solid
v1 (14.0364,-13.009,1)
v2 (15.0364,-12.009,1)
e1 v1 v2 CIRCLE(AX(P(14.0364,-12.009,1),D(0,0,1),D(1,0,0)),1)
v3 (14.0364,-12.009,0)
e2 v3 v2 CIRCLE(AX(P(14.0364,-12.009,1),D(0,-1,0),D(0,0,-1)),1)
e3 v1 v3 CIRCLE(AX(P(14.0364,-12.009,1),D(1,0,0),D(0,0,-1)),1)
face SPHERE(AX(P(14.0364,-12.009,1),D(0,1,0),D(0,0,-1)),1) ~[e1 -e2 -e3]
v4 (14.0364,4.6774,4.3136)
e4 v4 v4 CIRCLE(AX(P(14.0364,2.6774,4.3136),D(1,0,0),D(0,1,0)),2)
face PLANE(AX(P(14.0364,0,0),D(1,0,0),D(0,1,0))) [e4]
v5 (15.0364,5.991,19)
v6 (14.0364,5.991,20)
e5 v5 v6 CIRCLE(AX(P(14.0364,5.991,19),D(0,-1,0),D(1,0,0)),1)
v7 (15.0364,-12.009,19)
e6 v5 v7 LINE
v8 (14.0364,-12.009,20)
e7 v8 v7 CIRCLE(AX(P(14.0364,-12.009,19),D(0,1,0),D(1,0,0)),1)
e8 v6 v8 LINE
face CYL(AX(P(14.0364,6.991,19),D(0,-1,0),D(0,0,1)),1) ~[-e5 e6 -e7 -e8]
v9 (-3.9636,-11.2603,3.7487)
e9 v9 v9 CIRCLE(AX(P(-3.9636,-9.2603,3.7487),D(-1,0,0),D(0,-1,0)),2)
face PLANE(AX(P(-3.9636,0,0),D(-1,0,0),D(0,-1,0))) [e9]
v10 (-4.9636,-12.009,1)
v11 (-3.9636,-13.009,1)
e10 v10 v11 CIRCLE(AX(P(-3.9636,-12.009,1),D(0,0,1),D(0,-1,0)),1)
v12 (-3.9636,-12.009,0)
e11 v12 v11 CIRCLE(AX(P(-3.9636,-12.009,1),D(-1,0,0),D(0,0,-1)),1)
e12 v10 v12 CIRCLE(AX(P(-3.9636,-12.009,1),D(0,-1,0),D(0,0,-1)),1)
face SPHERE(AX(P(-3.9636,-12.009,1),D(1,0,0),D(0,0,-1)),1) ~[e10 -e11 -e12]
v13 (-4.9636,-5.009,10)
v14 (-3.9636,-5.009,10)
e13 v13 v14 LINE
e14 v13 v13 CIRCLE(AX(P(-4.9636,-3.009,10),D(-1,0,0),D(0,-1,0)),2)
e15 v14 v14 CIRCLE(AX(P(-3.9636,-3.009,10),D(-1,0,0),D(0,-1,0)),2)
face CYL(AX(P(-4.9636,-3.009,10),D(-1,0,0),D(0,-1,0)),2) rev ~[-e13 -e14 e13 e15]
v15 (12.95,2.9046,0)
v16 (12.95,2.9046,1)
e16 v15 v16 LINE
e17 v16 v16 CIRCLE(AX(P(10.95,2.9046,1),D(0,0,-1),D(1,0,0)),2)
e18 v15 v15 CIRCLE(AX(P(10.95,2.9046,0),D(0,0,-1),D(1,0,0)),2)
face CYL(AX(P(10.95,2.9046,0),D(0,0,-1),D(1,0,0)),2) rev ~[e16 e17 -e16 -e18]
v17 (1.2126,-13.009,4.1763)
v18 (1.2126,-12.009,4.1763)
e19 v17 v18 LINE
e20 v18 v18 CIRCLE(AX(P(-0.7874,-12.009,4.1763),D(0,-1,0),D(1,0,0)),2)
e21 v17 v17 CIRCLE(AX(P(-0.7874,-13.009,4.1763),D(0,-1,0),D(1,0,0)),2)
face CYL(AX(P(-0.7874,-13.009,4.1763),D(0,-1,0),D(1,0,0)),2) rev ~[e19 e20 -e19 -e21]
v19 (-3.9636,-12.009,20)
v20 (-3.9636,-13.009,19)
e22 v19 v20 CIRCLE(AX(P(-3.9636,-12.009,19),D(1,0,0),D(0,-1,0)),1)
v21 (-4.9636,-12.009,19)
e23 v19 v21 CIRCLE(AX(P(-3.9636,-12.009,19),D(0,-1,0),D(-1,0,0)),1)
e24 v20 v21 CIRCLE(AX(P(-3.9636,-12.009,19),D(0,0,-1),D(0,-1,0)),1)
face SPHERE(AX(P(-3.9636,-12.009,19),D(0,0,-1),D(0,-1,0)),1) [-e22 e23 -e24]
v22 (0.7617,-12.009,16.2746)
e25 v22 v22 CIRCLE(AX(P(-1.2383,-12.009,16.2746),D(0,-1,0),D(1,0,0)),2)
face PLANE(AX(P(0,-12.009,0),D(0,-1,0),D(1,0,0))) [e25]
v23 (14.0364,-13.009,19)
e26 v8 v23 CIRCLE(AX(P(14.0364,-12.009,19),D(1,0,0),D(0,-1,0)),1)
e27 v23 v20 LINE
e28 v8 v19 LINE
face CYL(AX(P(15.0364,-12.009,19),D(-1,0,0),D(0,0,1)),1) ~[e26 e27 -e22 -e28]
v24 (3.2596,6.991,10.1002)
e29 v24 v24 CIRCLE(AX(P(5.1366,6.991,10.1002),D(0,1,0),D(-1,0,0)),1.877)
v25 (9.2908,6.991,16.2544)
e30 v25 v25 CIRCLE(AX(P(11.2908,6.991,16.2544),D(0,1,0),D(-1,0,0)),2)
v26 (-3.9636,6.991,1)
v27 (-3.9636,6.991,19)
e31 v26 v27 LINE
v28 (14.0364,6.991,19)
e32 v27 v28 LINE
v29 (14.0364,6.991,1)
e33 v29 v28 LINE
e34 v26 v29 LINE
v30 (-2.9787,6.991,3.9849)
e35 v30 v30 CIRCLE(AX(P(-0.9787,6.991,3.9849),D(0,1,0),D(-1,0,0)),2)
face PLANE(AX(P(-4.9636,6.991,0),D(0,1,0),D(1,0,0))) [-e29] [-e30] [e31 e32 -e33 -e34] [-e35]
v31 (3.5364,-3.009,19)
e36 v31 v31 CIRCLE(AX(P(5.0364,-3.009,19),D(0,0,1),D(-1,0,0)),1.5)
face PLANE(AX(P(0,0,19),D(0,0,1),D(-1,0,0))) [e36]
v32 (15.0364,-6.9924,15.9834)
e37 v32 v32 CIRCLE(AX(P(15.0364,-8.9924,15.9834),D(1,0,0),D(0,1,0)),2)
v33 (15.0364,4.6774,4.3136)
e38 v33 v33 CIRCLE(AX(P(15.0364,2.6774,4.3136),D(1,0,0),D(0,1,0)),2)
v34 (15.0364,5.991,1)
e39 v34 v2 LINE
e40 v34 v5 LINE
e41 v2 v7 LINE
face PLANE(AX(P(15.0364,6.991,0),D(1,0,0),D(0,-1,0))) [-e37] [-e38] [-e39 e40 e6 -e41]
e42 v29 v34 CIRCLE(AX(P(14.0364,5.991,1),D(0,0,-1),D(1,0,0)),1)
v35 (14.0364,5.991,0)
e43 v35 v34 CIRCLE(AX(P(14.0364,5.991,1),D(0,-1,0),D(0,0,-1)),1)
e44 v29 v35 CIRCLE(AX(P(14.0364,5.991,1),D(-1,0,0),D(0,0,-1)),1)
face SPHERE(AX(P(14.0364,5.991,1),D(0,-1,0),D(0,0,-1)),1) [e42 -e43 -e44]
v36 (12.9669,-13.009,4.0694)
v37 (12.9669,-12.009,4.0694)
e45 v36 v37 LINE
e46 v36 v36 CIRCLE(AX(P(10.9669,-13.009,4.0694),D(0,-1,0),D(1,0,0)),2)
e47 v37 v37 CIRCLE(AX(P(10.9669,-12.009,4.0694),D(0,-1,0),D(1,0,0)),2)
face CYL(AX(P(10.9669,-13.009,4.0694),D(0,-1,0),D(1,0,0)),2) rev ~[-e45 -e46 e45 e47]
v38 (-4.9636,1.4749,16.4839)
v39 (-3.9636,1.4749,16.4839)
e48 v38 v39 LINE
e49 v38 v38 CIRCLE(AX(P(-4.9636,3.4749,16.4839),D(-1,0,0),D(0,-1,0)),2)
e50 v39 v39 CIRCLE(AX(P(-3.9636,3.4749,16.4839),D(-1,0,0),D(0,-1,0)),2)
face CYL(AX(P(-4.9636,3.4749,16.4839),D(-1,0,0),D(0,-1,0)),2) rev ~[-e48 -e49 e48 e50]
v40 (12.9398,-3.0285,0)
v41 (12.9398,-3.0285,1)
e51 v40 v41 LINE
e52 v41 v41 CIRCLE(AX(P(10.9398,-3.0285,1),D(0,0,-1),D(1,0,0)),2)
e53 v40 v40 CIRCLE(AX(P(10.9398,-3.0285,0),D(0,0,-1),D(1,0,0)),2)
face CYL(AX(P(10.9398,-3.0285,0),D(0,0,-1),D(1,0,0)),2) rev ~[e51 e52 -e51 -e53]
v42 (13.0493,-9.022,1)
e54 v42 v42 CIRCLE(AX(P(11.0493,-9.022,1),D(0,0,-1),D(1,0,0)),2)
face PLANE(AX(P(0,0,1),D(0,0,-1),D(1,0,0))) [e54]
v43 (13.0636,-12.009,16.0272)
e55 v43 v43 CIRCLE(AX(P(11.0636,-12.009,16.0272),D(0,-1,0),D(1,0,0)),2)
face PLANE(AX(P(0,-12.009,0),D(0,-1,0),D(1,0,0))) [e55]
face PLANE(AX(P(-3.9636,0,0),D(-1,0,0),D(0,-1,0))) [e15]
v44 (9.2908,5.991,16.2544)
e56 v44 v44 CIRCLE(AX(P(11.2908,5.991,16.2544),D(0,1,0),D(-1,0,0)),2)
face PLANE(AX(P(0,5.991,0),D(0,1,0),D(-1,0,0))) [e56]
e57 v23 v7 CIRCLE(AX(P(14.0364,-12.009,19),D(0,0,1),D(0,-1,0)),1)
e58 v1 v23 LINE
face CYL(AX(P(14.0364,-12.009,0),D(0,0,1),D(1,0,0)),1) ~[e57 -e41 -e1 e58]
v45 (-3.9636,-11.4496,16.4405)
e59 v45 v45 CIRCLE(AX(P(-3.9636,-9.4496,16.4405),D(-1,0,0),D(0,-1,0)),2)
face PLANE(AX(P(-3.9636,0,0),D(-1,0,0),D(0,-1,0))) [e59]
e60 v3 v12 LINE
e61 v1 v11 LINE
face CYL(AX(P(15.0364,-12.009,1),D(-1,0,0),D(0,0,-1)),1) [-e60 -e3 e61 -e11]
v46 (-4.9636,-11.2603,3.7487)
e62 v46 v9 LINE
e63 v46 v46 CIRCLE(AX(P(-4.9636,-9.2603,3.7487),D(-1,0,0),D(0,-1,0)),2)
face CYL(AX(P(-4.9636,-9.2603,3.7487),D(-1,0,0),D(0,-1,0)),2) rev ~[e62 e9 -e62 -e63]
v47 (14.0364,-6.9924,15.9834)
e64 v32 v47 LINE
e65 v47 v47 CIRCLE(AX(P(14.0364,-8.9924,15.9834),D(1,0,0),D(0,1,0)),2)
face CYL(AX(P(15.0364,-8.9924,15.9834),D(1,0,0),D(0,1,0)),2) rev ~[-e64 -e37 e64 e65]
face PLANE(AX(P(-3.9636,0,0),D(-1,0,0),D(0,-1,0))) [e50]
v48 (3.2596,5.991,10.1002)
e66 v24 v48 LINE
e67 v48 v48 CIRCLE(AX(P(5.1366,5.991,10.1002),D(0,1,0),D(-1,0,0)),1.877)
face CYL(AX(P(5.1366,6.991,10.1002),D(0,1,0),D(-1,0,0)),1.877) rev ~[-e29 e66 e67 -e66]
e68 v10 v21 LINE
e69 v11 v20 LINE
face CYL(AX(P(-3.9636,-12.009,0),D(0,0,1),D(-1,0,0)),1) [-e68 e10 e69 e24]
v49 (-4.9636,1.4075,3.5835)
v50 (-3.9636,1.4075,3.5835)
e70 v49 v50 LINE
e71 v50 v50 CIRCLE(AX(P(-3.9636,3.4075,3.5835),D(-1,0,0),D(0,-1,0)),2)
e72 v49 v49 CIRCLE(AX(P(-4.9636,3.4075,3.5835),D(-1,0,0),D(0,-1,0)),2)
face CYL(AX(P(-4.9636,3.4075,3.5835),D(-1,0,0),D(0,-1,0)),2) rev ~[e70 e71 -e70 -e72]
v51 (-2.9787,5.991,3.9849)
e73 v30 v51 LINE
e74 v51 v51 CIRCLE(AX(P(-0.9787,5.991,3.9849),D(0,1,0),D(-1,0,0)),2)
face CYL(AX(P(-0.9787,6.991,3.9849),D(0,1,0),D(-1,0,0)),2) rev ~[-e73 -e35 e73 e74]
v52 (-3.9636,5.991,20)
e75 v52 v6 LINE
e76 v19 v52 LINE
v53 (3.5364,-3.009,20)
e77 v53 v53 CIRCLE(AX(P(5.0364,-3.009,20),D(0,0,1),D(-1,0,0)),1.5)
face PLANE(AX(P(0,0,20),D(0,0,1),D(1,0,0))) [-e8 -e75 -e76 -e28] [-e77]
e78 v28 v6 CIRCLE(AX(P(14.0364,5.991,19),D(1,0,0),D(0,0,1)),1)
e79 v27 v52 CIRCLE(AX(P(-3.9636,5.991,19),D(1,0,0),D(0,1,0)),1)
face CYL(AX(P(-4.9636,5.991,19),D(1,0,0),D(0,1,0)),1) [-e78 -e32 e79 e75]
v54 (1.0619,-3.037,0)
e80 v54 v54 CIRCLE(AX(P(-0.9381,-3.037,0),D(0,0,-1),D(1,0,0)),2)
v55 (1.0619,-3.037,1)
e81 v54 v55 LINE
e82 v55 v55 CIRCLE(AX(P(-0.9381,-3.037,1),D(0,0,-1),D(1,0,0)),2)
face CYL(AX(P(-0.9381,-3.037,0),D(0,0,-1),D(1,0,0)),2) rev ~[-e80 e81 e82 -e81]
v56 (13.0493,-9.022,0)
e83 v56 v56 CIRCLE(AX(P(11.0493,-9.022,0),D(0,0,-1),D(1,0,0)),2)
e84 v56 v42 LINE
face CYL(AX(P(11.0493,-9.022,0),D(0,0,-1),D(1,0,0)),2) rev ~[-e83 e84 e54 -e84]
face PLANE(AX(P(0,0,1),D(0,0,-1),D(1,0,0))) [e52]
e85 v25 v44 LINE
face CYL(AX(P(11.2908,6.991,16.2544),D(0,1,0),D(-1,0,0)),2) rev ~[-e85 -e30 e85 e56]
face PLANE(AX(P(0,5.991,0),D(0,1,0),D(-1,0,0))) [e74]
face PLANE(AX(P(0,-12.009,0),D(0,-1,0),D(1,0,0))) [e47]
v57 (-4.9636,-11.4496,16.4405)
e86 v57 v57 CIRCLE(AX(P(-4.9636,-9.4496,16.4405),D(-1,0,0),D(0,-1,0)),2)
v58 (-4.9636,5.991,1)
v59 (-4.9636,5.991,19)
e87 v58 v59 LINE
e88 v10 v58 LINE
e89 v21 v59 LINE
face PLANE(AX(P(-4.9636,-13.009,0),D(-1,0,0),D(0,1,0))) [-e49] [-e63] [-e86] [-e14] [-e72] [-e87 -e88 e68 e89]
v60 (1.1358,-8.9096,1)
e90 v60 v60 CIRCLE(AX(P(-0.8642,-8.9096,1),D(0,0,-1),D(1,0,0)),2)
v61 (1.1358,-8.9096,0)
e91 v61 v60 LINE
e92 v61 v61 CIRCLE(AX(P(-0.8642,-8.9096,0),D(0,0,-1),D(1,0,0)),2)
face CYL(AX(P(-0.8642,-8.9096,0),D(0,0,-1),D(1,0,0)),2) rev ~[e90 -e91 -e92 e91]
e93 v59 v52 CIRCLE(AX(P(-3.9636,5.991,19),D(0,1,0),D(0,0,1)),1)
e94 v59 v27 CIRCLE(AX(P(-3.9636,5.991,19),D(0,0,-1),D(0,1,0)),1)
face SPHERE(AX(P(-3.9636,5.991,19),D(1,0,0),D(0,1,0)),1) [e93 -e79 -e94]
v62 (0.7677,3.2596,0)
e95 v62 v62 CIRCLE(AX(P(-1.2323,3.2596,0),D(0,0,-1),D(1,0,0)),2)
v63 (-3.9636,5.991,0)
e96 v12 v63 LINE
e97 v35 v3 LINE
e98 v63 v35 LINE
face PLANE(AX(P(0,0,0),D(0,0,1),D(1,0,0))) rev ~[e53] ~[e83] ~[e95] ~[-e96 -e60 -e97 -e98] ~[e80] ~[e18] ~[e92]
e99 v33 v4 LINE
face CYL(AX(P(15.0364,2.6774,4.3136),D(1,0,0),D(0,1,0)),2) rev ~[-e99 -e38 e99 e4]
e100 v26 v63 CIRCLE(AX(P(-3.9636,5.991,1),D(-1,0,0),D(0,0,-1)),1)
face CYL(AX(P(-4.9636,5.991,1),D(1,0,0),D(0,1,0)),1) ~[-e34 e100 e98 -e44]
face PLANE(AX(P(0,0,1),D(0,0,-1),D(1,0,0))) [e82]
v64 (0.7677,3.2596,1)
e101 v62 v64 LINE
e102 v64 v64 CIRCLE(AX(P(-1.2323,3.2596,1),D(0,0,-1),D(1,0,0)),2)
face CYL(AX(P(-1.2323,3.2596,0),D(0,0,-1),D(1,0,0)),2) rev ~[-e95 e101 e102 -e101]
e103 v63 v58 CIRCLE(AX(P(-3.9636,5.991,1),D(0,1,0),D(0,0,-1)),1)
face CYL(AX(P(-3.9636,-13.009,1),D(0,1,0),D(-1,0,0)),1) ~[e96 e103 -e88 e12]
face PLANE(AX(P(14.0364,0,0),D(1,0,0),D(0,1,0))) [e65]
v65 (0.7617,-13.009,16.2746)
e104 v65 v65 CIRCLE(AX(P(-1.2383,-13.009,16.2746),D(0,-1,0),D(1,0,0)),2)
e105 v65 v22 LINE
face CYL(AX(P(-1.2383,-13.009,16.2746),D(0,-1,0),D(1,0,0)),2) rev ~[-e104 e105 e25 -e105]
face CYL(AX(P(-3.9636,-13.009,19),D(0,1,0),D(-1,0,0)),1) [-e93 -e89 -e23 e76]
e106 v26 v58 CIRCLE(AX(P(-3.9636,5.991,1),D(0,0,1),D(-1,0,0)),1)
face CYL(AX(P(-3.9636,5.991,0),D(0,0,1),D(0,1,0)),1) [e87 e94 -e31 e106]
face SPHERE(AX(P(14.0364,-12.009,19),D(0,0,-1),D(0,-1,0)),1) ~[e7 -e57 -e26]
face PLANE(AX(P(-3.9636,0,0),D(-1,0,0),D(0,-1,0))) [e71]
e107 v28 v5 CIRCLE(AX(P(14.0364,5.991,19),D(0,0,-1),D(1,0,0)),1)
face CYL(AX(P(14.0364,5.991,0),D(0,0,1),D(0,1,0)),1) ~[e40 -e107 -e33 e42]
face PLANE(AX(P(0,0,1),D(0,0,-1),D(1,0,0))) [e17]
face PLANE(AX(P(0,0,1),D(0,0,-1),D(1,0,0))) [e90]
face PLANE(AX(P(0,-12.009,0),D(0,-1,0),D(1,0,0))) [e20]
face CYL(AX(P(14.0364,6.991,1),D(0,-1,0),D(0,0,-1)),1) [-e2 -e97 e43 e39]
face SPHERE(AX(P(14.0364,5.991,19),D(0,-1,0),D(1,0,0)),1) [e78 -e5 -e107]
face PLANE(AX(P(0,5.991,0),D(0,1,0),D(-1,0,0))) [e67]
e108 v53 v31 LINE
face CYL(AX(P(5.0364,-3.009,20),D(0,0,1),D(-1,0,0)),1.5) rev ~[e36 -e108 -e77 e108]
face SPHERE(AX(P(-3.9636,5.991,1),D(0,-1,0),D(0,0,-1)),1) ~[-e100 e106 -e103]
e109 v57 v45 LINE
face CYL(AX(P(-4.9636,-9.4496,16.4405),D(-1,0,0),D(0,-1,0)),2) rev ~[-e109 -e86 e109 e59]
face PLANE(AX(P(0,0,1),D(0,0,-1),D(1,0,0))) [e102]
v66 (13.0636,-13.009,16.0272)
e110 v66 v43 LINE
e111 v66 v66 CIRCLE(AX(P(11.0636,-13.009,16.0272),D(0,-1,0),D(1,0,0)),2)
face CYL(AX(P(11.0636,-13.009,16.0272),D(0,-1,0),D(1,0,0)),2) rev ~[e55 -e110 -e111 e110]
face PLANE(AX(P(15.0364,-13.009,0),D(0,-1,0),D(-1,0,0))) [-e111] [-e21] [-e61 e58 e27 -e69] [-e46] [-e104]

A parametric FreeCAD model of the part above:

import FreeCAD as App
import Part
import Sketcher
from FreeCAD import Vector
Q = App.Units.Quantity


def edges_at(feature, points):
    """Names of the edges that pass closest to the given points."""
    edges = feature.Shape.Edges
    near = lambda p: min(range(len(edges)), key=lambda i: edges[i].distToShape(Part.Vertex(*p))[0])
    return sorted({f"Edge{near(p) + 1}" for p in points})


def add_polygon(sketch, points):
    """Adds a closed chain of lines whose ends are joined by coincident constraints."""
    first, n = sketch.GeometryCount, len(points)
    for a, b in zip(points, points[1:] + points[:1]):
        sketch.addGeometry(Part.LineSegment(App.Vector(*a, 0), App.Vector(*b, 0)), False)
    for i in range(n):
        sketch.addConstraint(Sketcher.Constraint("Coincident", first + i, 2, first + (i + 1) % n, 1))

doc = App.newDocument("Part")
body = doc.addObject("PartDesign::Body", "Body")

# Sketch on XY plane
sketch1 = body.newObject("Sketcher::SketchObject", "Sketch")
sketch1.AttachmentSupport = (doc.getObject("XY_Plane"), [""])
sketch1.MapMode = "FlatFace"
add_polygon(sketch1, [(15, 7), (-5, 7), (-5, -13), (15, -13)])  # lines 0-3
sketch1.addConstraint([
    Sketcher.Constraint("Horizontal", 0),
    Sketcher.Constraint("Vertical", 1),
    Sketcher.Constraint("Horizontal", 2),
    Sketcher.Constraint("Vertical", 3),
    Sketcher.Constraint("Equal", 2, 1),
    Sketcher.Constraint("DistanceX", 0, 2, 0, 1, Q("20 mm")),
    Sketcher.Constraint("DistanceY", -1, 1, 0, 2, Q("6.991 mm")),
    Sketcher.Constraint("DistanceX", 0, 2, -1, 1, Q("4.9636 mm")),
])
pad1 = body.newObject("PartDesign::Pad", "Pad")
pad1.Profile = sketch1
pad1.Length = 20

# Sketch on XY plane
sketch2 = body.newObject("Sketcher::SketchObject", "Sketch001")
sketch2.AttachmentSupport = (doc.getObject("XY_Plane"), [""])
sketch2.MapMode = "FlatFace"
sketch2.AttachmentOffset = App.Placement(Vector(0, 0, 20), App.Rotation())
sketch2.addGeometry(Part.Circle(Vector(5, -3, 0), Vector(0, 0, 1), 1.5), False)
sketch2.addConstraint([
    Sketcher.Constraint("Diameter", 0, Q("3 mm")),
    Sketcher.Constraint("DistanceY", 0, 3, -1, 1, Q("3.009 mm")),
    Sketcher.Constraint("DistanceX", -1, 1, 0, 3, Q("5.0364 mm")),
])
pocket1 = body.newObject("PartDesign::Pocket", "Pocket")
pocket1.Profile = sketch2
pocket1.Length = 1

# Sketch on XZ plane
sketch3 = body.newObject("Sketcher::SketchObject", "Sketch002")
sketch3.AttachmentSupport = (doc.getObject("XZ_Plane"), [""])
sketch3.MapMode = "FlatFace"
sketch3.AttachmentOffset = App.Placement(Vector(0, 0, -6.991), App.Rotation())
sketch3.addGeometry([
    Part.Circle(Vector(5.1, 10.1, 0), Vector(0, 0, 1), 1.9),
    Part.Circle(Vector(-1, 4, 0), Vector(0, 0, 1), 2),
    Part.Circle(Vector(11.3, 16.3, 0), Vector(0, 0, 1), 2),
], False)
sketch3.addConstraint([
    Sketcher.Constraint("Equal", 1, 2),
    Sketcher.Constraint("Diameter", 1, Q("4 mm")),
    Sketcher.Constraint("Diameter", 0, Q("3.754 mm")),
    Sketcher.Constraint("DistanceY", -1, 1, 1, 3, Q("3.985 mm")),
    Sketcher.Constraint("DistanceX", -1, 1, 0, 3, Q("5.1366 mm")),
    Sketcher.Constraint("DistanceY", -1, 1, 0, 3, Q("10.1002 mm")),
    Sketcher.Constraint("DistanceX", 1, 3, -1, 1, Q("0.9787 mm")),
    Sketcher.Constraint("DistanceX", -1, 1, 2, 3, Q("11.2908 mm")),
    Sketcher.Constraint("DistanceY", -1, 1, 2, 3, Q("16.2544 mm")),
])
pocket2 = body.newObject("PartDesign::Pocket", "Pocket001")
pocket2.Profile = sketch3
pocket2.Length = 1
pocket2.Reversed = True

# Sketch on YZ plane
sketch4 = body.newObject("Sketcher::SketchObject", "Sketch003")
sketch4.AttachmentSupport = (doc.getObject("YZ_Plane"), [""])
sketch4.MapMode = "FlatFace"
sketch4.AttachmentOffset = App.Placement(Vector(0, 0, -4.9636), App.Rotation())
sketch4.addGeometry([
    Part.Circle(Vector(-3, 10, 0), Vector(0, 0, 1), 2),  # 0
    Part.Circle(Vector(3.5, 16.5, 0), Vector(0, 0, 1), 2),  # 1
    Part.Circle(Vector(-9.3, 3.7, 0), Vector(0, 0, 1), 2),  # 2
    Part.Circle(Vector(-9.4, 16.4, 0), Vector(0, 0, 1), 2),  # 3
    Part.Circle(Vector(3.4, 3.6, 0), Vector(0, 0, 1), 2),  # 4
], False)
sketch4.addConstraint([
    Sketcher.Constraint("Equal", 0, 1),
    Sketcher.Constraint("Equal", 1, 2),
    Sketcher.Constraint("Equal", 2, 3),
    Sketcher.Constraint("Equal", 3, 4),
    Sketcher.Constraint("Diameter", 0, Q("4 mm")),
    Sketcher.Constraint("DistanceY", -1, 1, 0, 3, Q("10 mm")),
    Sketcher.Constraint("DistanceX", 0, 3, -1, 1, Q("3.009 mm")),
    Sketcher.Constraint("DistanceX", -1, 1, 1, 3, Q("3.475 mm")),
    Sketcher.Constraint("DistanceY", -1, 1, 1, 3, Q("16.484 mm")),
    Sketcher.Constraint("DistanceX", 3, 3, 4, 3, Q("12.857 mm")),
    Sketcher.Constraint("DistanceY", 4, 3, 3, 3, Q("12.857 mm")),
    Sketcher.Constraint("DistanceX", 2, 3, -1, 1, Q("9.2603 mm")),
    Sketcher.Constraint("DistanceY", -1, 1, 2, 3, Q("3.7487 mm")),
    Sketcher.Constraint("DistanceX", 3, 3, -1, 1, Q("9.4496 mm")),
    Sketcher.Constraint("DistanceY", -1, 1, 3, 3, Q("16.4405 mm")),
])
pocket3 = body.newObject("PartDesign::Pocket", "Pocket002")
pocket3.Profile = sketch4
pocket3.Length = 1
pocket3.Reversed = True

# Sketch on XY plane
sketch5 = body.newObject("Sketcher::SketchObject", "Sketch004")
sketch5.AttachmentSupport = (doc.getObject("XY_Plane"), [""])
sketch5.MapMode = "FlatFace"
sketch5.addGeometry([
    Part.Circle(Vector(10.9, 2.9, 0), Vector(0, 0, 1), 2),  # 0
    Part.Circle(Vector(11, -9, 0), Vector(0, 0, 1), 2),  # 1
    Part.Circle(Vector(10.9, -3, 0), Vector(0, 0, 1), 2),  # 2
    Part.Circle(Vector(-0.9, -8.9, 0), Vector(0, 0, 1), 2),  # 3
    Part.Circle(Vector(-1.2, 3.3, 0), Vector(0, 0, 1), 2),  # 4
    Part.Circle(Vector(-0.9, -3, 0), Vector(0, 0, 1), 2),  # 5
], False)
sketch5.addConstraint([
    Sketcher.Constraint("Equal", 0, 1),
    Sketcher.Constraint("Equal", 1, 2),
    Sketcher.Constraint("Equal", 2, 3),
    Sketcher.Constraint("Equal", 3, 4),
    Sketcher.Constraint("Equal", 4, 5),
    Sketcher.Constraint("Diameter", 0, Q("4 mm")),
    Sketcher.Constraint("DistanceX", -1, 1, 0, 3, Q("10.95 mm")),
    Sketcher.Constraint("DistanceY", 1, 3, -1, 1, Q("9.022 mm")),
    Sketcher.Constraint("DistanceX", 5, 3, -1, 1, Q("0.938 mm")),
    Sketcher.Constraint("DistanceY", 5, 3, -1, 1, Q("3.037 mm")),
    Sketcher.Constraint("DistanceY", 2, 3, 0, 3, Q("5.933 mm")),
    Sketcher.Constraint("DistanceX", 3, 3, 2, 3, Q("11.804 mm")),
    Sketcher.Constraint("DistanceY", 3, 3, 2, 3, Q("5.881 mm")),
    Sketcher.Constraint("DistanceX", 4, 3, 3, 3, Q("0.368 mm")),
    Sketcher.Constraint("DistanceY", 0, 3, 4, 3, Q("0.355 mm")),
    Sketcher.Constraint("DistanceX", 5, 3, 3, 3, Q("0.074 mm")),
    Sketcher.Constraint("DistanceY", -1, 1, 0, 3, Q("2.9046 mm")),
    Sketcher.Constraint("DistanceX", -1, 1, 1, 3, Q("11.0493 mm")),
])
pocket4 = body.newObject("PartDesign::Pocket", "Pocket003")
pocket4.Profile = sketch5
pocket4.Length = 1
pocket4.Reversed = True

# Sketch on XZ plane
sketch6 = body.newObject("Sketcher::SketchObject", "Sketch005")
sketch6.AttachmentSupport = (doc.getObject("XZ_Plane"), [""])
sketch6.MapMode = "FlatFace"
sketch6.AttachmentOffset = App.Placement(Vector(0, 0, 13.009), App.Rotation())
sketch6.addGeometry([
    Part.Circle(Vector(11.1, 16, 0), Vector(0, 0, 1), 2),
    Part.Circle(Vector(11, 4.1, 0), Vector(0, 0, 1), 2),
    Part.Circle(Vector(-1.2, 16.3, 0), Vector(0, 0, 1), 2),
    Part.Circle(Vector(-0.8, 4.2, 0), Vector(0, 0, 1), 2),
], False)
sketch6.addConstraint([
    Sketcher.Constraint("Equal", 0, 1),
    Sketcher.Constraint("Equal", 1, 2),
    Sketcher.Constraint("Equal", 2, 3),
    Sketcher.Constraint("Diameter", 0, Q("4 mm")),
    Sketcher.Constraint("DistanceX", -1, 1, 1, 3, Q("10.967 mm")),
    Sketcher.Constraint("DistanceX", 2, 3, 0, 3, Q("12.302 mm")),
    Sketcher.Constraint("DistanceY", 1, 3, 3, 3, Q("0.107 mm")),
    Sketcher.Constraint("DistanceX", 2, 3, 3, 3, Q("0.451 mm")),
    Sketcher.Constraint("DistanceY", 3, 3, 0, 3, Q("11.851 mm")),
    Sketcher.Constraint("DistanceX", -1, 1, 0, 3, Q("11.0636 mm")),
    Sketcher.Constraint("DistanceY", -1, 1, 0, 3, Q("16.0272 mm")),
    Sketcher.Constraint("DistanceY", -1, 1, 2, 3, Q("16.2746 mm")),
])
pocket5 = body.newObject("PartDesign::Pocket", "Pocket004")
pocket5.Profile = sketch6
pocket5.Length = 1

# Sketch on YZ plane
sketch7 = body.newObject("Sketcher::SketchObject", "Sketch006")
sketch7.AttachmentSupport = (doc.getObject("YZ_Plane"), [""])
sketch7.MapMode = "FlatFace"
sketch7.AttachmentOffset = App.Placement(Vector(0, 0, 15.0364), App.Rotation())
sketch7.addGeometry([
    Part.Circle(Vector(-9, 16, 0), Vector(0, 0, 1), 2),
    Part.Circle(Vector(2.7, 4.3, 0), Vector(0, 0, 1), 2),
], False)
sketch7.addConstraint([
    Sketcher.Constraint("Equal", 0, 1),
    Sketcher.Constraint("Diameter", 0, Q("4 mm")),
    Sketcher.Constraint("DistanceX", 0, 3, -1, 1, Q("8.9924 mm")),
    Sketcher.Constraint("DistanceY", -1, 1, 0, 3, Q("15.9834 mm")),
    Sketcher.Constraint("DistanceX", -1, 1, 1, 3, Q("2.6774 mm")),
    Sketcher.Constraint("DistanceY", -1, 1, 1, 3, Q("4.3136 mm")),
])
pocket6 = body.newObject("PartDesign::Pocket", "Pocket005")
pocket6.Profile = sketch7
pocket6.Length = 1
doc.recompute()

fillet = body.newObject("PartDesign::Fillet", "Fillet")
fillet.Base = (pocket6, edges_at(pocket6, [
    (15.036, -3.009, 0),
    (5.036, -13.009, 0),
    (-4.964, -3.009, 0),
    (5.036, 6.991, 0),
    (15.036, -13.009, 10),
    (-4.964, -13.009, 10),
    (5.036, -13.009, 20),
    (15.036, -3.009, 20),
    (15.036, 6.991, 10),
    (5.036, 6.991, 20),
    (-4.964, 6.991, 10),
    (-4.964, -3.009, 20),
]))
fillet.Radius = 1

doc.recompute()
